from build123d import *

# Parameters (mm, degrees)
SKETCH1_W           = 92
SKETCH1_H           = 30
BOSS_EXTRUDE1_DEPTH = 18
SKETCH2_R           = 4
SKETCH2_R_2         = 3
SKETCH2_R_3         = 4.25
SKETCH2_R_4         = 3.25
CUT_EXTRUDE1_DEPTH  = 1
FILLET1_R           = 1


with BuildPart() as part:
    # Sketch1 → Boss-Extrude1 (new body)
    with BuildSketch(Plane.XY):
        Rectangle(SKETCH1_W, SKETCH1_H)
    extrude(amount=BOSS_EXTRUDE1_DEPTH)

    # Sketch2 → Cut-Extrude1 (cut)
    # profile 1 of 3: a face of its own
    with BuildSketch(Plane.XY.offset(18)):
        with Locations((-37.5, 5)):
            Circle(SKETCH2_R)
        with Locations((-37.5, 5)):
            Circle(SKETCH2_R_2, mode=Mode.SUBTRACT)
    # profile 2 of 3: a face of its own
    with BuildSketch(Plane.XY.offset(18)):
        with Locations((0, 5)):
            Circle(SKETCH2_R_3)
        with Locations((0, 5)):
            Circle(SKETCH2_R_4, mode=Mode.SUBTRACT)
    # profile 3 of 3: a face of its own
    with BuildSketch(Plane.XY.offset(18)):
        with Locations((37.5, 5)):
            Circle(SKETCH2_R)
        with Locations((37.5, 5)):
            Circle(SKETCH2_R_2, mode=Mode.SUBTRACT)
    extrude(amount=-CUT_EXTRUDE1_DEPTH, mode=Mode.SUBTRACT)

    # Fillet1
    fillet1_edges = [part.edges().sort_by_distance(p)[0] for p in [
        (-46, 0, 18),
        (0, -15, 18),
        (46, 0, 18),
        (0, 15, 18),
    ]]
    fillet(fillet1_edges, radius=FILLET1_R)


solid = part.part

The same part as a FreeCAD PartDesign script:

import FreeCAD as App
import Part
import Sketcher

V = App.Vector
Q = App.Units.Quantity


def edges_at(feature, points):
    """Names of the edges that pass closest to the given points."""
    edges = feature.Shape.Edges
    near = lambda p: min(range(len(edges)), key=lambda i: edges[i].distToShape(Part.Vertex(*p))[0])
    return sorted({f"Edge{near(p) + 1}" for p in points})


def add_polygon(sketch, points):
    """Adds a closed chain of lines whose ends are joined by coincident constraints."""
    first, n = sketch.GeometryCount, len(points)
    for a, b in zip(points, points[1:] + points[:1]):
        sketch.addGeometry(Part.LineSegment(App.Vector(*a, 0), App.Vector(*b, 0)), False)
    for i in range(n):
        sketch.addConstraint(Sketcher.Constraint("Coincident", first + i, 2, first + (i + 1) % n, 1))

doc = App.newDocument("Part")
body = doc.addObject("PartDesign::Body", "Body")

# Sketch on XY plane
sketch1 = doc.addObject("Sketcher::SketchObject", "Sketch")
body.addObject(sketch1)
sketch1.AttachmentSupport = (doc.XY_Plane, [""])
sketch1.MapMode = "FlatFace"
add_polygon(sketch1, [(-46, 15), (-46, -15), (46, -15), (46, 15)])  # lines 0-3
sketch1.addConstraint(Sketcher.Constraint("Vertical", 0))
sketch1.addConstraint(Sketcher.Constraint("Horizontal", 1))
sketch1.addConstraint(Sketcher.Constraint("Vertical", 2))
sketch1.addConstraint(Sketcher.Constraint("Horizontal", 3))
sketch1.addConstraint(Sketcher.Constraint("Symmetric", 0, 2, 2, 2, -1, 1))
sketch1.addConstraint(Sketcher.Constraint("DistanceX", 1, 1, 1, 2, Q("92 mm")))
sketch1.addConstraint(Sketcher.Constraint("DistanceY", 0, 2, 0, 1, Q("30 mm")))
pad1 = doc.addObject("PartDesign::Pad", "Pad")
body.addObject(pad1)
pad1.Profile = sketch1
pad1.Length = 18

# Sketch on XY plane
sketch2 = doc.addObject("Sketcher::SketchObject", "Sketch001")
body.addObject(sketch2)
sketch2.AttachmentSupport = (doc.XY_Plane, [""])
sketch2.MapMode = "FlatFace"
sketch2.AttachmentOffset = App.Placement(V(0, 0, 18), App.Rotation())
sketch2.addGeometry(Part.Circle(V(-37.5, 5, 0), V(0, 0, 1), 4), False)
sketch2.addGeometry(Part.Circle(V(-37.5, 5, 0), V(0, 0, 1), 3), False)
sketch2.addGeometry(Part.Circle(V(0, 5, 0), V(0, 0, 1), 4.2), False)
sketch2.addGeometry(Part.Circle(V(0, 5, 0), V(0, 0, 1), 3.2), False)
sketch2.addGeometry(Part.Circle(V(37.5, 5, 0), V(0, 0, 1), 4), False)
sketch2.addGeometry(Part.Circle(V(37.5, 5, 0), V(0, 0, 1), 3), False)
sketch2.addConstraint(Sketcher.Constraint("Coincident", 1, 3, 0, 3))
sketch2.addConstraint(Sketcher.Constraint("Coincident", 3, 3, 2, 3))
sketch2.addConstraint(Sketcher.Constraint("Coincident", 5, 3, 4, 3))
sketch2.addConstraint(Sketcher.Constraint("Equal", 0, 4))
sketch2.addConstraint(Sketcher.Constraint("Equal", 1, 5))
sketch2.addConstraint(Sketcher.Constraint("Symmetric", 0, 3, 4, 3, -2))
sketch2.addConstraint(Sketcher.Constraint("PointOnObject", 2, 3, -2))
sketch2.addConstraint(Sketcher.Constraint("Horizontal", 1, 3, 2, 3))
sketch2.addConstraint(Sketcher.Constraint("Diameter", 0, Q("8 mm")))
sketch2.addConstraint(Sketcher.Constraint("Diameter", 1, Q("6 mm")))
sketch2.addConstraint(Sketcher.Constraint("Diameter", 2, Q("8.5 mm")))
sketch2.addConstraint(Sketcher.Constraint("Diameter", 3, Q("6.5 mm")))
sketch2.addConstraint(Sketcher.Constraint("DistanceY", -1, 1, 0, 3, Q("5 mm")))
sketch2.addConstraint(Sketcher.Constraint("DistanceX", 0, 3, 4, 3, Q("75 mm")))
pocket1 = doc.addObject("PartDesign::Pocket", "Pocket")
body.addObject(pocket1)
pocket1.Profile = sketch2
pocket1.Length = 1
doc.recompute()

fillet = doc.addObject("PartDesign::Fillet", "Fillet")
body.addObject(fillet)
fillet.Base = (pocket1, edges_at(pocket1, [
    (-46, 0, 18),
    (0, -15, 18),
    (46, 0, 18),
    (0, 15, 18),
]))
fillet.Radius = 1

doc.recompute()
